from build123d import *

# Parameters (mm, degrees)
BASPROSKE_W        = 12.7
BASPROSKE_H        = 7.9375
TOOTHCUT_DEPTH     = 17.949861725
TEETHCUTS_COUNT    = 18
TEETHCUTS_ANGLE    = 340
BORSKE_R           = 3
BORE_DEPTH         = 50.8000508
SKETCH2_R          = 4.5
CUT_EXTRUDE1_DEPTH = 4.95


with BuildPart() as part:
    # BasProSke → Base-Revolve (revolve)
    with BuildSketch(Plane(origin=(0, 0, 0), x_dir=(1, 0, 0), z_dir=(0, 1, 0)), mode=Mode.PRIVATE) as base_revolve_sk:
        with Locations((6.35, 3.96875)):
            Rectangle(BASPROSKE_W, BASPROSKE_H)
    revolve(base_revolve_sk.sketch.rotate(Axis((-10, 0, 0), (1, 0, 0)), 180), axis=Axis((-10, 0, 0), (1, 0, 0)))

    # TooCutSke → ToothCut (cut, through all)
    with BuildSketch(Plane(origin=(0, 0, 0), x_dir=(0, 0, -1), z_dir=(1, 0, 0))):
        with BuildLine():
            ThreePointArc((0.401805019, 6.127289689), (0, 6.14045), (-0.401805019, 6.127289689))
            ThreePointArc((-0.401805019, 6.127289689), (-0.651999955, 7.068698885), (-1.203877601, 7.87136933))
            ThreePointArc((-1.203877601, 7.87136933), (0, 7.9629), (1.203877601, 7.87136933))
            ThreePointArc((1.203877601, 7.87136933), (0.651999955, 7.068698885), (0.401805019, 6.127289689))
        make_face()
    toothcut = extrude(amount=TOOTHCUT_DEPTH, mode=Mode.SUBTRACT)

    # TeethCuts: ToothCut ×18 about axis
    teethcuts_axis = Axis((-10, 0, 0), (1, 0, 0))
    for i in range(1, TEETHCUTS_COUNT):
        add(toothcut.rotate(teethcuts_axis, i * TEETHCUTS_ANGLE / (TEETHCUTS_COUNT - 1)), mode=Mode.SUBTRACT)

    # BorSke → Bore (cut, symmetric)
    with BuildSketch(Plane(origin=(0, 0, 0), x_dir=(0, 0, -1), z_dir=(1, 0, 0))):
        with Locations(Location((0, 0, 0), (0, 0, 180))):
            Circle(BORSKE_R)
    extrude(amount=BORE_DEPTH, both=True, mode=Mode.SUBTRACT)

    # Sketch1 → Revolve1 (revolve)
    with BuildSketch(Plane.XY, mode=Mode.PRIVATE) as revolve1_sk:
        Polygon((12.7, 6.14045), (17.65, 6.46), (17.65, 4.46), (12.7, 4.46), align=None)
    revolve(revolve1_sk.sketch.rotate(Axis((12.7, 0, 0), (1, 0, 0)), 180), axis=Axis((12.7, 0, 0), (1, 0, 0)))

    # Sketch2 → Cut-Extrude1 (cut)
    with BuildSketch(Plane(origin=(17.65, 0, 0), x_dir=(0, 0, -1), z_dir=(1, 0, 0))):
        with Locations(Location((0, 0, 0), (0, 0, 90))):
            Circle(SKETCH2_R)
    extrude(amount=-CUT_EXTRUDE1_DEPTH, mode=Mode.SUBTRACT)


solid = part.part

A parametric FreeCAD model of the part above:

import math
import FreeCAD as App
import Part
import Sketcher
Q = App.Units.Quantity


def add_polygon(sketch, points):
    """Adds a closed chain of lines whose ends are joined by coincident constraints."""
    first, n = sketch.GeometryCount, len(points)
    for a, b in zip(points, points[1:] + points[:1]):
        sketch.addGeometry(Part.LineSegment(App.Vector(*a, 0), App.Vector(*b, 0)), False)
    for i in range(n):
        sketch.addConstraint(Sketcher.Constraint("Coincident", first + i, 2, first + (i + 1) % n, 1))

doc = App.newDocument("Part")
params = doc.addObject("Spreadsheet::Sheet", "Params")
for row, (alias, value) in enumerate([
    ("sketch1_width", "0.5 in"),
    ("sketch1_height", "0.3125 in"),
    ("revolution_angle", "360 deg"),
    ("pocket2_length", "101.600102 mm"),
    ("revolution2_angle", "360 deg"),
    ("pocket3_length", "4.95 mm"),
], start=1):
    params.set(f"A{row}", alias)
    params.set(f"B{row}", "=" + value)
    params.setAlias(f"B{row}", alias)

body = doc.addObject("PartDesign::Body", "Body")

# Sketch on XZ plane
sketch1 = body.newObject("Sketcher::SketchObject", "Sketch")
sketch1.AttachmentSupport = (doc.getObject("XZ_Plane"), [""])
sketch1.MapMode = "FlatFace"
add_polygon(sketch1, [(0, -8), (0, 0), (13, 0), (13, -8)])  # lines 0-3
sketch1.addConstraint([
    Sketcher.Constraint("Vertical", 0),
    Sketcher.Constraint("Horizontal", 1),
    Sketcher.Constraint("Vertical", 2),
    Sketcher.Constraint("Horizontal", 3),
    Sketcher.Constraint("Coincident", 0, 2, -1, 1),
    Sketcher.Constraint("DistanceX", 1, 1, 1, 2, Q("0.5 in")),
    Sketcher.Constraint("DistanceY", 0, 1, 0, 2, Q("0.3125 in")),
])
sketch1.setExpression("Constraints[9]", "Params.sketch1_width")
sketch1.setExpression("Constraints[10]", "Params.sketch1_height")
revolution = body.newObject("PartDesign::Revolution", "Revolution")
revolution.Profile = sketch1
revolution.ReferenceAxis = (sketch1, ["H_Axis"])
revolution.setExpression("Angle", "Params.revolution_angle")

# Sketch on YZ plane
sketch2 = body.newObject("Sketcher::SketchObject", "Sketch001")
sketch2.AttachmentSupport = (doc.getObject("YZ_Plane"), [""])
sketch2.MapMode = "FlatFace"
sketch2.addGeometry([
    Part.ArcOfCircle(Part.Circle(App.Vector(0, 0, 0), App.Vector(0, 0, 1), 6.1), math.radians(-3.75), math.radians(3.75)),
    Part.ArcOfCircle(Part.Circle(App.Vector(5.9, -3.2, 0), App.Vector(0, 0, 1), 2.9), math.radians(46), math.radians(85)),
    Part.ArcOfCircle(Part.Circle(App.Vector(0, 0, 0), App.Vector(0, 0, 1), 8), math.radians(-8.7), math.radians(8.7)),
    Part.ArcOfCircle(Part.Circle(App.Vector(5.9, 3.2, 0), App.Vector(0, 0, 1), 2.9), math.radians(-85), math.radians(-46)),
], False)
sketch2.addConstraint([
    Sketcher.Constraint("Coincident", 0, 1, 1, 2),
    Sketcher.Constraint("Coincident", 1, 1, 2, 1),
    Sketcher.Constraint("Coincident", 2, 2, 3, 2),
    Sketcher.Constraint("Coincident", 3, 1, 0, 2),
    Sketcher.Constraint("Coincident", 0, 3, -1, 1),
    Sketcher.Constraint("Coincident", 2, 3, -1, 1),
    Sketcher.Constraint("Equal", 1, 3),
    Sketcher.Constraint("Symmetric", 1, 3, 3, 3, -1),
    Sketcher.Constraint("Radius", 1, Q("0.1125 in")),
    Sketcher.Constraint("Radius", 2, Q("0.3135 in")),
    Sketcher.Constraint("Radius", 0, Q("6.14045 mm")),
    Sketcher.Constraint("DistanceX", -1, 1, 0, 1, Q("6.12729 mm")),
    Sketcher.Constraint("DistanceX", -1, 1, 1, 1, Q("7.871369 mm")),
])
pocket1 = body.newObject("PartDesign::Pocket", "Pocket")
pocket1.Profile = sketch2
pocket1.Type = "ThroughAll"
pocket1.Reversed = True
doc.recompute()

polarpattern = body.newObject("PartDesign::PolarPattern", "PolarPattern")
polarpattern.Originals = [pocket1]
polarpattern.Axis = (doc.getObject("X_Axis"), [""])
polarpattern.Angle = 360
polarpattern.Occurrences = 18
body.Tip = polarpattern

# Sketch on YZ plane
sketch3 = body.newObject("Sketcher::SketchObject", "Sketch002")
sketch3.AttachmentSupport = (doc.getObject("YZ_Plane"), [""])
sketch3.MapMode = "FlatFace"
sketch3.addGeometry(Part.Circle(App.Vector(0, 0, 0), App.Vector(0, 0, 1), 3), False)
sketch3.addConstraint([
    Sketcher.Constraint("Coincident", 0, 3, -1, 1),
    Sketcher.Constraint("Diameter", 0, Q("6 mm")),
])
pocket2 = body.newObject("PartDesign::Pocket", "Pocket001")
pocket2.Profile = sketch3
pocket2.setExpression("Length", "Params.pocket2_length")
pocket2.Midplane = True

# Sketch on XY plane
sketch4 = body.newObject("Sketcher::SketchObject", "Sketch003")
sketch4.AttachmentSupport = (doc.getObject("XY_Plane"), [""])
sketch4.MapMode = "FlatFace"
add_polygon(sketch4, [(17.6, 6.5), (12.7, 6.1), (12.7, 4.5), (17.6, 4.5)])  # lines 0-3
sketch4.addConstraint([
    Sketcher.Constraint("Vertical", 1),
    Sketcher.Constraint("Horizontal", 2),
    Sketcher.Constraint("Vertical", 3),
    Sketcher.Constraint("DistanceX", -1, 1, 0, 2, Q("0.5 in")),
    Sketcher.Constraint("DistanceX", 2, 1, 2, 2, Q("4.95 mm")),
    Sketcher.Constraint("DistanceY", 3, 1, 3, 2, Q("2 mm")),
    Sketcher.Constraint("DistanceY", 1, 2, 1, 1, Q("1.68045 mm")),
    Sketcher.Constraint("DistanceY", -1, 1, 1, 2, Q("4.46 mm")),
])
revolution2 = body.newObject("PartDesign::Revolution", "Revolution001")
revolution2.Profile = sketch4
revolution2.ReferenceAxis = (sketch4, ["H_Axis"])
revolution2.setExpression("Angle", "Params.revolution2_angle")

# Sketch on YZ plane
sketch5 = body.newObject("Sketcher::SketchObject", "Sketch004")
sketch5.AttachmentSupport = (doc.getObject("YZ_Plane"), [""])
sketch5.MapMode = "FlatFace"
sketch5.AttachmentOffset = App.Placement(App.Vector(0, 0, 17.65), App.Rotation())
sketch5.addGeometry(Part.Circle(App.Vector(0, 0, 0), App.Vector(0, 0, 1), 4.5), False)
sketch5.addConstraint([
    Sketcher.Constraint("Coincident", 0, 3, -1, 1),
    Sketcher.Constraint("Diameter", 0, Q("9 mm")),
])
pocket3 = body.newObject("PartDesign::Pocket", "Pocket002")
pocket3.Profile = sketch5
pocket3.setExpression("Length", "Params.pocket3_length")

doc.recompute()
